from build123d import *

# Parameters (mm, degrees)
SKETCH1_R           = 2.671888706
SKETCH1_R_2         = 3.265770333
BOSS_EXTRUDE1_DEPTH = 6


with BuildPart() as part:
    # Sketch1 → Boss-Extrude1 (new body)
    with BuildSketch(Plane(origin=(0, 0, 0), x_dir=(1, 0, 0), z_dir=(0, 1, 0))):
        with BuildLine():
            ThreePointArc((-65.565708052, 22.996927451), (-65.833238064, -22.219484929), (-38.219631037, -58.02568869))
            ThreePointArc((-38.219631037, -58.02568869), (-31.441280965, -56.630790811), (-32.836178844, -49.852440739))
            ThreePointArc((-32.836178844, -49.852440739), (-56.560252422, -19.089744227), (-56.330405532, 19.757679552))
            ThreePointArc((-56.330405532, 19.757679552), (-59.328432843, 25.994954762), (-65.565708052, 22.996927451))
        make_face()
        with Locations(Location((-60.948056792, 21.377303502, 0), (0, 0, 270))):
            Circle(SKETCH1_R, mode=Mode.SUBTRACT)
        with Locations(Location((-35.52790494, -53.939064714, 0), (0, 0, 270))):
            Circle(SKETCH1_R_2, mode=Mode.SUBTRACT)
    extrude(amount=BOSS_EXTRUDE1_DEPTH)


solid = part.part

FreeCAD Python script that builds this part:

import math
import FreeCAD as App
import Part
import Sketcher

V = App.Vector

doc = App.newDocument("Part")
body = doc.addObject("PartDesign::Body", "Body")

sketch1 = body.newObject("Sketcher::SketchObject", "Sketch")
sketch1.AttachmentSupport = (doc.getObject("XZ_Plane"), [""])
sketch1.MapMode = "FlatFace"
sketch1.addGeometry([
    Part.ArcOfCircle(Part.Circle(V(0, 0, 0), V(0, 0, 1), 69.5), math.radians(123), math.radians(199)),
    Part.ArcOfCircle(Part.Circle(V(-35.5, 53.9, 0), V(0, 0, 1), 4.9), math.radians(-57), math.radians(123)),
    Part.ArcOfCircle(Part.Circle(V(0, 0, 0), V(0, 0, 1), 59.7), math.radians(123), math.radians(199)),
    Part.ArcOfCircle(Part.Circle(V(-60.9, -21.4, 0), V(0, 0, 1), 4.9), math.radians(-161), math.radians(19)),
    Part.Circle(V(-35.5, 53.9, 0), V(0, 0, 1), 3.3),
    Part.Circle(V(-60.9, -21.4, 0), V(0, 0, 1), 2.7),
], False)
sketch1.addConstraint([
    Sketcher.Constraint("Tangent", 0, 1, 1, 2),
    Sketcher.Constraint("Tangent", 1, 1, 2, 1),
    Sketcher.Constraint("Tangent", 2, 2, 3, 2),
    Sketcher.Constraint("Tangent", 3, 1, 0, 2),
    Sketcher.Constraint("Coincident", 0, 3, -1, 1),
    Sketcher.Constraint("Coincident", 2, 3, -1, 1),
    Sketcher.Constraint("Coincident", 4, 3, 1, 3),
    Sketcher.Constraint("Coincident", 5, 3, 3, 3),
    Sketcher.Constraint("Radius", 0, 69.481802),
    Sketcher.Constraint("Diameter", 4, 6.531541),
    Sketcher.Constraint("Diameter", 5, 5.343777),
    Sketcher.Constraint("Radius", 1, 4.893453),
    Sketcher.Constraint("DistanceX", 0, 1, -1, 1, 38.219631),
    Sketcher.Constraint("DistanceY", 2, 2, -1, 1, 19.75768),
])
pad1 = body.newObject("PartDesign::Pad", "Pad")
pad1.Profile = sketch1
pad1.Length = 6
pad1.Reversed = True

doc.recompute()
